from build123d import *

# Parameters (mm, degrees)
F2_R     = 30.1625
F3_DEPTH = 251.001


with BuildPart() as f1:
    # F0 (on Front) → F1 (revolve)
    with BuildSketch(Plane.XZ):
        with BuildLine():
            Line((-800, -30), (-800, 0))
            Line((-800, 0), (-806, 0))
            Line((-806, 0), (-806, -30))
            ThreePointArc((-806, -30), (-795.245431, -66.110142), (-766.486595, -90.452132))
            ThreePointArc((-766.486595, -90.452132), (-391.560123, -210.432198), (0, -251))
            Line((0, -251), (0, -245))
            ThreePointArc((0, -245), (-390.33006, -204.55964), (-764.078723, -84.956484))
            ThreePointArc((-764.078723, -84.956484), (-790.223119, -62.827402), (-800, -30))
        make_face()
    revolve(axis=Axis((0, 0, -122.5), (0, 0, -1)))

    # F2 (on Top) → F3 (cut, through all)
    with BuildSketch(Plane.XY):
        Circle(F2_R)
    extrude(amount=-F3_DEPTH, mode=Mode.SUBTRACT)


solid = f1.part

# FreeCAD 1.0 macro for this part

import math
import FreeCAD as App
import Part
import Sketcher
from FreeCAD import Vector

doc = App.newDocument("Part")
body = doc.addObject("PartDesign::Body", "Body")

sketch1 = body.newObject("Sketcher::SketchObject", "Sketch")
sketch1.AttachmentSupport = (doc.getObject("XZ_Plane"), [""])
sketch1.MapMode = "FlatFace"
sketch1.addGeometry(Part.LineSegment(Vector(-800, -30, 0), Vector(-800, 0, 0)), False)
sketch1.addGeometry(Part.LineSegment(Vector(-800, 0, 0), Vector(-806, 0, 0)), False)
sketch1.addGeometry(Part.LineSegment(Vector(-806, 0, 0), Vector(-806, -30, 0)), False)
sketch1.addGeometry(Part.ArcOfCircle(Part.Circle(Vector(-740.000001, -30, 0), Vector(0, 0, 1), 65.999999), math.radians(180), math.radians(246.339774)), False)
sketch1.addGeometry(Part.ArcOfCircle(Part.Circle(Vector(0.000003, 1658.951624, 0), Vector(0, 0, 1), 1909.951624), math.radians(-113.660227), math.radians(-90)), False)
sketch1.addGeometry(Part.LineSegment(Vector(0, -251, 0), Vector(0, -245, 0)), False)
sketch1.addGeometry(Part.ArcOfCircle(Part.Circle(Vector(-0.000002, 1658.951606, 0), Vector(0, 0, 1), 1903.951606), math.radians(-113.660227), math.radians(-90)), False)
sketch1.addGeometry(Part.ArcOfCircle(Part.Circle(Vector(-739.999999, -30, 0), Vector(0, 0, 1), 60.000001), math.radians(-180), math.radians(-113.660227)), False)
sketch1.addConstraint(Sketcher.Constraint("Coincident", 0, 2, 1, 1))
sketch1.addConstraint(Sketcher.Constraint("Coincident", 1, 2, 2, 1))
sketch1.addConstraint(Sketcher.Constraint("Tangent", 2, 2, 3, 1))
sketch1.addConstraint(Sketcher.Constraint("Tangent", 3, 2, 4, 1))
sketch1.addConstraint(Sketcher.Constraint("Coincident", 4, 2, 5, 1))
sketch1.addConstraint(Sketcher.Constraint("Coincident", 5, 2, 6, 2))
sketch1.addConstraint(Sketcher.Constraint("Tangent", 6, 1, 7, 2))
sketch1.addConstraint(Sketcher.Constraint("Tangent", 7, 1, 0, 1))
sketch1.addConstraint(Sketcher.Constraint("Vertical", 0))
sketch1.addConstraint(Sketcher.Constraint("Horizontal", 1))
sketch1.addConstraint(Sketcher.Constraint("Vertical", 2))
sketch1.addConstraint(Sketcher.Constraint("Vertical", 5))
sketch1.addConstraint(Sketcher.Constraint("Coincident", 7, 3, 3, 3))
sketch1.addConstraint(Sketcher.Constraint("PointOnObject", 0, 2, -1))
sketch1.addConstraint(Sketcher.Constraint("PointOnObject", 5, 2, -2))
sketch1.addConstraint(Sketcher.Constraint("Equal", 1, 5))
sketch1.addConstraint(Sketcher.Constraint("Radius", 3, 65.999999))
sketch1.addConstraint(Sketcher.Constraint("Radius", 7, 60.000001))
sketch1.addConstraint(Sketcher.Constraint("DistanceY", 0, 1, 0, 2, 30.0))
sketch1.addConstraint(Sketcher.Constraint("DistanceX", 3, 3, -1, 1, 740.000001))
sketch1.addConstraint(Sketcher.Constraint("DistanceY", 4, 2, -1, 1, 251.0))
sketch1.addConstraint(Sketcher.Constraint("DistanceX", 3, 3, 6, 3, 739.999998))
sketch1.addConstraint(Sketcher.Constraint("Radius", 4, 1909.951624))
revolution = body.newObject("PartDesign::Revolution", "Revolution")
revolution.Profile = sketch1
revolution.ReferenceAxis = (sketch1, ["V_Axis"])
revolution.Angle = 360

sketch2 = body.newObject("Sketcher::SketchObject", "Sketch001")
sketch2.AttachmentSupport = (doc.getObject("XY_Plane"), [""])
sketch2.MapMode = "FlatFace"
sketch2.addGeometry(Part.Circle(Vector(0, 0, 0), Vector(0, 0, 1), 30.1625), False)
sketch2.addConstraint(Sketcher.Constraint("Coincident", 0, 3, -1, 1))
sketch2.addConstraint(Sketcher.Constraint("Diameter", 0, 60.325))
pocket1 = body.newObject("PartDesign::Pocket", "Pocket")
pocket1.Profile = sketch2
pocket1.Type = "ThroughAll"

doc.recompute()
